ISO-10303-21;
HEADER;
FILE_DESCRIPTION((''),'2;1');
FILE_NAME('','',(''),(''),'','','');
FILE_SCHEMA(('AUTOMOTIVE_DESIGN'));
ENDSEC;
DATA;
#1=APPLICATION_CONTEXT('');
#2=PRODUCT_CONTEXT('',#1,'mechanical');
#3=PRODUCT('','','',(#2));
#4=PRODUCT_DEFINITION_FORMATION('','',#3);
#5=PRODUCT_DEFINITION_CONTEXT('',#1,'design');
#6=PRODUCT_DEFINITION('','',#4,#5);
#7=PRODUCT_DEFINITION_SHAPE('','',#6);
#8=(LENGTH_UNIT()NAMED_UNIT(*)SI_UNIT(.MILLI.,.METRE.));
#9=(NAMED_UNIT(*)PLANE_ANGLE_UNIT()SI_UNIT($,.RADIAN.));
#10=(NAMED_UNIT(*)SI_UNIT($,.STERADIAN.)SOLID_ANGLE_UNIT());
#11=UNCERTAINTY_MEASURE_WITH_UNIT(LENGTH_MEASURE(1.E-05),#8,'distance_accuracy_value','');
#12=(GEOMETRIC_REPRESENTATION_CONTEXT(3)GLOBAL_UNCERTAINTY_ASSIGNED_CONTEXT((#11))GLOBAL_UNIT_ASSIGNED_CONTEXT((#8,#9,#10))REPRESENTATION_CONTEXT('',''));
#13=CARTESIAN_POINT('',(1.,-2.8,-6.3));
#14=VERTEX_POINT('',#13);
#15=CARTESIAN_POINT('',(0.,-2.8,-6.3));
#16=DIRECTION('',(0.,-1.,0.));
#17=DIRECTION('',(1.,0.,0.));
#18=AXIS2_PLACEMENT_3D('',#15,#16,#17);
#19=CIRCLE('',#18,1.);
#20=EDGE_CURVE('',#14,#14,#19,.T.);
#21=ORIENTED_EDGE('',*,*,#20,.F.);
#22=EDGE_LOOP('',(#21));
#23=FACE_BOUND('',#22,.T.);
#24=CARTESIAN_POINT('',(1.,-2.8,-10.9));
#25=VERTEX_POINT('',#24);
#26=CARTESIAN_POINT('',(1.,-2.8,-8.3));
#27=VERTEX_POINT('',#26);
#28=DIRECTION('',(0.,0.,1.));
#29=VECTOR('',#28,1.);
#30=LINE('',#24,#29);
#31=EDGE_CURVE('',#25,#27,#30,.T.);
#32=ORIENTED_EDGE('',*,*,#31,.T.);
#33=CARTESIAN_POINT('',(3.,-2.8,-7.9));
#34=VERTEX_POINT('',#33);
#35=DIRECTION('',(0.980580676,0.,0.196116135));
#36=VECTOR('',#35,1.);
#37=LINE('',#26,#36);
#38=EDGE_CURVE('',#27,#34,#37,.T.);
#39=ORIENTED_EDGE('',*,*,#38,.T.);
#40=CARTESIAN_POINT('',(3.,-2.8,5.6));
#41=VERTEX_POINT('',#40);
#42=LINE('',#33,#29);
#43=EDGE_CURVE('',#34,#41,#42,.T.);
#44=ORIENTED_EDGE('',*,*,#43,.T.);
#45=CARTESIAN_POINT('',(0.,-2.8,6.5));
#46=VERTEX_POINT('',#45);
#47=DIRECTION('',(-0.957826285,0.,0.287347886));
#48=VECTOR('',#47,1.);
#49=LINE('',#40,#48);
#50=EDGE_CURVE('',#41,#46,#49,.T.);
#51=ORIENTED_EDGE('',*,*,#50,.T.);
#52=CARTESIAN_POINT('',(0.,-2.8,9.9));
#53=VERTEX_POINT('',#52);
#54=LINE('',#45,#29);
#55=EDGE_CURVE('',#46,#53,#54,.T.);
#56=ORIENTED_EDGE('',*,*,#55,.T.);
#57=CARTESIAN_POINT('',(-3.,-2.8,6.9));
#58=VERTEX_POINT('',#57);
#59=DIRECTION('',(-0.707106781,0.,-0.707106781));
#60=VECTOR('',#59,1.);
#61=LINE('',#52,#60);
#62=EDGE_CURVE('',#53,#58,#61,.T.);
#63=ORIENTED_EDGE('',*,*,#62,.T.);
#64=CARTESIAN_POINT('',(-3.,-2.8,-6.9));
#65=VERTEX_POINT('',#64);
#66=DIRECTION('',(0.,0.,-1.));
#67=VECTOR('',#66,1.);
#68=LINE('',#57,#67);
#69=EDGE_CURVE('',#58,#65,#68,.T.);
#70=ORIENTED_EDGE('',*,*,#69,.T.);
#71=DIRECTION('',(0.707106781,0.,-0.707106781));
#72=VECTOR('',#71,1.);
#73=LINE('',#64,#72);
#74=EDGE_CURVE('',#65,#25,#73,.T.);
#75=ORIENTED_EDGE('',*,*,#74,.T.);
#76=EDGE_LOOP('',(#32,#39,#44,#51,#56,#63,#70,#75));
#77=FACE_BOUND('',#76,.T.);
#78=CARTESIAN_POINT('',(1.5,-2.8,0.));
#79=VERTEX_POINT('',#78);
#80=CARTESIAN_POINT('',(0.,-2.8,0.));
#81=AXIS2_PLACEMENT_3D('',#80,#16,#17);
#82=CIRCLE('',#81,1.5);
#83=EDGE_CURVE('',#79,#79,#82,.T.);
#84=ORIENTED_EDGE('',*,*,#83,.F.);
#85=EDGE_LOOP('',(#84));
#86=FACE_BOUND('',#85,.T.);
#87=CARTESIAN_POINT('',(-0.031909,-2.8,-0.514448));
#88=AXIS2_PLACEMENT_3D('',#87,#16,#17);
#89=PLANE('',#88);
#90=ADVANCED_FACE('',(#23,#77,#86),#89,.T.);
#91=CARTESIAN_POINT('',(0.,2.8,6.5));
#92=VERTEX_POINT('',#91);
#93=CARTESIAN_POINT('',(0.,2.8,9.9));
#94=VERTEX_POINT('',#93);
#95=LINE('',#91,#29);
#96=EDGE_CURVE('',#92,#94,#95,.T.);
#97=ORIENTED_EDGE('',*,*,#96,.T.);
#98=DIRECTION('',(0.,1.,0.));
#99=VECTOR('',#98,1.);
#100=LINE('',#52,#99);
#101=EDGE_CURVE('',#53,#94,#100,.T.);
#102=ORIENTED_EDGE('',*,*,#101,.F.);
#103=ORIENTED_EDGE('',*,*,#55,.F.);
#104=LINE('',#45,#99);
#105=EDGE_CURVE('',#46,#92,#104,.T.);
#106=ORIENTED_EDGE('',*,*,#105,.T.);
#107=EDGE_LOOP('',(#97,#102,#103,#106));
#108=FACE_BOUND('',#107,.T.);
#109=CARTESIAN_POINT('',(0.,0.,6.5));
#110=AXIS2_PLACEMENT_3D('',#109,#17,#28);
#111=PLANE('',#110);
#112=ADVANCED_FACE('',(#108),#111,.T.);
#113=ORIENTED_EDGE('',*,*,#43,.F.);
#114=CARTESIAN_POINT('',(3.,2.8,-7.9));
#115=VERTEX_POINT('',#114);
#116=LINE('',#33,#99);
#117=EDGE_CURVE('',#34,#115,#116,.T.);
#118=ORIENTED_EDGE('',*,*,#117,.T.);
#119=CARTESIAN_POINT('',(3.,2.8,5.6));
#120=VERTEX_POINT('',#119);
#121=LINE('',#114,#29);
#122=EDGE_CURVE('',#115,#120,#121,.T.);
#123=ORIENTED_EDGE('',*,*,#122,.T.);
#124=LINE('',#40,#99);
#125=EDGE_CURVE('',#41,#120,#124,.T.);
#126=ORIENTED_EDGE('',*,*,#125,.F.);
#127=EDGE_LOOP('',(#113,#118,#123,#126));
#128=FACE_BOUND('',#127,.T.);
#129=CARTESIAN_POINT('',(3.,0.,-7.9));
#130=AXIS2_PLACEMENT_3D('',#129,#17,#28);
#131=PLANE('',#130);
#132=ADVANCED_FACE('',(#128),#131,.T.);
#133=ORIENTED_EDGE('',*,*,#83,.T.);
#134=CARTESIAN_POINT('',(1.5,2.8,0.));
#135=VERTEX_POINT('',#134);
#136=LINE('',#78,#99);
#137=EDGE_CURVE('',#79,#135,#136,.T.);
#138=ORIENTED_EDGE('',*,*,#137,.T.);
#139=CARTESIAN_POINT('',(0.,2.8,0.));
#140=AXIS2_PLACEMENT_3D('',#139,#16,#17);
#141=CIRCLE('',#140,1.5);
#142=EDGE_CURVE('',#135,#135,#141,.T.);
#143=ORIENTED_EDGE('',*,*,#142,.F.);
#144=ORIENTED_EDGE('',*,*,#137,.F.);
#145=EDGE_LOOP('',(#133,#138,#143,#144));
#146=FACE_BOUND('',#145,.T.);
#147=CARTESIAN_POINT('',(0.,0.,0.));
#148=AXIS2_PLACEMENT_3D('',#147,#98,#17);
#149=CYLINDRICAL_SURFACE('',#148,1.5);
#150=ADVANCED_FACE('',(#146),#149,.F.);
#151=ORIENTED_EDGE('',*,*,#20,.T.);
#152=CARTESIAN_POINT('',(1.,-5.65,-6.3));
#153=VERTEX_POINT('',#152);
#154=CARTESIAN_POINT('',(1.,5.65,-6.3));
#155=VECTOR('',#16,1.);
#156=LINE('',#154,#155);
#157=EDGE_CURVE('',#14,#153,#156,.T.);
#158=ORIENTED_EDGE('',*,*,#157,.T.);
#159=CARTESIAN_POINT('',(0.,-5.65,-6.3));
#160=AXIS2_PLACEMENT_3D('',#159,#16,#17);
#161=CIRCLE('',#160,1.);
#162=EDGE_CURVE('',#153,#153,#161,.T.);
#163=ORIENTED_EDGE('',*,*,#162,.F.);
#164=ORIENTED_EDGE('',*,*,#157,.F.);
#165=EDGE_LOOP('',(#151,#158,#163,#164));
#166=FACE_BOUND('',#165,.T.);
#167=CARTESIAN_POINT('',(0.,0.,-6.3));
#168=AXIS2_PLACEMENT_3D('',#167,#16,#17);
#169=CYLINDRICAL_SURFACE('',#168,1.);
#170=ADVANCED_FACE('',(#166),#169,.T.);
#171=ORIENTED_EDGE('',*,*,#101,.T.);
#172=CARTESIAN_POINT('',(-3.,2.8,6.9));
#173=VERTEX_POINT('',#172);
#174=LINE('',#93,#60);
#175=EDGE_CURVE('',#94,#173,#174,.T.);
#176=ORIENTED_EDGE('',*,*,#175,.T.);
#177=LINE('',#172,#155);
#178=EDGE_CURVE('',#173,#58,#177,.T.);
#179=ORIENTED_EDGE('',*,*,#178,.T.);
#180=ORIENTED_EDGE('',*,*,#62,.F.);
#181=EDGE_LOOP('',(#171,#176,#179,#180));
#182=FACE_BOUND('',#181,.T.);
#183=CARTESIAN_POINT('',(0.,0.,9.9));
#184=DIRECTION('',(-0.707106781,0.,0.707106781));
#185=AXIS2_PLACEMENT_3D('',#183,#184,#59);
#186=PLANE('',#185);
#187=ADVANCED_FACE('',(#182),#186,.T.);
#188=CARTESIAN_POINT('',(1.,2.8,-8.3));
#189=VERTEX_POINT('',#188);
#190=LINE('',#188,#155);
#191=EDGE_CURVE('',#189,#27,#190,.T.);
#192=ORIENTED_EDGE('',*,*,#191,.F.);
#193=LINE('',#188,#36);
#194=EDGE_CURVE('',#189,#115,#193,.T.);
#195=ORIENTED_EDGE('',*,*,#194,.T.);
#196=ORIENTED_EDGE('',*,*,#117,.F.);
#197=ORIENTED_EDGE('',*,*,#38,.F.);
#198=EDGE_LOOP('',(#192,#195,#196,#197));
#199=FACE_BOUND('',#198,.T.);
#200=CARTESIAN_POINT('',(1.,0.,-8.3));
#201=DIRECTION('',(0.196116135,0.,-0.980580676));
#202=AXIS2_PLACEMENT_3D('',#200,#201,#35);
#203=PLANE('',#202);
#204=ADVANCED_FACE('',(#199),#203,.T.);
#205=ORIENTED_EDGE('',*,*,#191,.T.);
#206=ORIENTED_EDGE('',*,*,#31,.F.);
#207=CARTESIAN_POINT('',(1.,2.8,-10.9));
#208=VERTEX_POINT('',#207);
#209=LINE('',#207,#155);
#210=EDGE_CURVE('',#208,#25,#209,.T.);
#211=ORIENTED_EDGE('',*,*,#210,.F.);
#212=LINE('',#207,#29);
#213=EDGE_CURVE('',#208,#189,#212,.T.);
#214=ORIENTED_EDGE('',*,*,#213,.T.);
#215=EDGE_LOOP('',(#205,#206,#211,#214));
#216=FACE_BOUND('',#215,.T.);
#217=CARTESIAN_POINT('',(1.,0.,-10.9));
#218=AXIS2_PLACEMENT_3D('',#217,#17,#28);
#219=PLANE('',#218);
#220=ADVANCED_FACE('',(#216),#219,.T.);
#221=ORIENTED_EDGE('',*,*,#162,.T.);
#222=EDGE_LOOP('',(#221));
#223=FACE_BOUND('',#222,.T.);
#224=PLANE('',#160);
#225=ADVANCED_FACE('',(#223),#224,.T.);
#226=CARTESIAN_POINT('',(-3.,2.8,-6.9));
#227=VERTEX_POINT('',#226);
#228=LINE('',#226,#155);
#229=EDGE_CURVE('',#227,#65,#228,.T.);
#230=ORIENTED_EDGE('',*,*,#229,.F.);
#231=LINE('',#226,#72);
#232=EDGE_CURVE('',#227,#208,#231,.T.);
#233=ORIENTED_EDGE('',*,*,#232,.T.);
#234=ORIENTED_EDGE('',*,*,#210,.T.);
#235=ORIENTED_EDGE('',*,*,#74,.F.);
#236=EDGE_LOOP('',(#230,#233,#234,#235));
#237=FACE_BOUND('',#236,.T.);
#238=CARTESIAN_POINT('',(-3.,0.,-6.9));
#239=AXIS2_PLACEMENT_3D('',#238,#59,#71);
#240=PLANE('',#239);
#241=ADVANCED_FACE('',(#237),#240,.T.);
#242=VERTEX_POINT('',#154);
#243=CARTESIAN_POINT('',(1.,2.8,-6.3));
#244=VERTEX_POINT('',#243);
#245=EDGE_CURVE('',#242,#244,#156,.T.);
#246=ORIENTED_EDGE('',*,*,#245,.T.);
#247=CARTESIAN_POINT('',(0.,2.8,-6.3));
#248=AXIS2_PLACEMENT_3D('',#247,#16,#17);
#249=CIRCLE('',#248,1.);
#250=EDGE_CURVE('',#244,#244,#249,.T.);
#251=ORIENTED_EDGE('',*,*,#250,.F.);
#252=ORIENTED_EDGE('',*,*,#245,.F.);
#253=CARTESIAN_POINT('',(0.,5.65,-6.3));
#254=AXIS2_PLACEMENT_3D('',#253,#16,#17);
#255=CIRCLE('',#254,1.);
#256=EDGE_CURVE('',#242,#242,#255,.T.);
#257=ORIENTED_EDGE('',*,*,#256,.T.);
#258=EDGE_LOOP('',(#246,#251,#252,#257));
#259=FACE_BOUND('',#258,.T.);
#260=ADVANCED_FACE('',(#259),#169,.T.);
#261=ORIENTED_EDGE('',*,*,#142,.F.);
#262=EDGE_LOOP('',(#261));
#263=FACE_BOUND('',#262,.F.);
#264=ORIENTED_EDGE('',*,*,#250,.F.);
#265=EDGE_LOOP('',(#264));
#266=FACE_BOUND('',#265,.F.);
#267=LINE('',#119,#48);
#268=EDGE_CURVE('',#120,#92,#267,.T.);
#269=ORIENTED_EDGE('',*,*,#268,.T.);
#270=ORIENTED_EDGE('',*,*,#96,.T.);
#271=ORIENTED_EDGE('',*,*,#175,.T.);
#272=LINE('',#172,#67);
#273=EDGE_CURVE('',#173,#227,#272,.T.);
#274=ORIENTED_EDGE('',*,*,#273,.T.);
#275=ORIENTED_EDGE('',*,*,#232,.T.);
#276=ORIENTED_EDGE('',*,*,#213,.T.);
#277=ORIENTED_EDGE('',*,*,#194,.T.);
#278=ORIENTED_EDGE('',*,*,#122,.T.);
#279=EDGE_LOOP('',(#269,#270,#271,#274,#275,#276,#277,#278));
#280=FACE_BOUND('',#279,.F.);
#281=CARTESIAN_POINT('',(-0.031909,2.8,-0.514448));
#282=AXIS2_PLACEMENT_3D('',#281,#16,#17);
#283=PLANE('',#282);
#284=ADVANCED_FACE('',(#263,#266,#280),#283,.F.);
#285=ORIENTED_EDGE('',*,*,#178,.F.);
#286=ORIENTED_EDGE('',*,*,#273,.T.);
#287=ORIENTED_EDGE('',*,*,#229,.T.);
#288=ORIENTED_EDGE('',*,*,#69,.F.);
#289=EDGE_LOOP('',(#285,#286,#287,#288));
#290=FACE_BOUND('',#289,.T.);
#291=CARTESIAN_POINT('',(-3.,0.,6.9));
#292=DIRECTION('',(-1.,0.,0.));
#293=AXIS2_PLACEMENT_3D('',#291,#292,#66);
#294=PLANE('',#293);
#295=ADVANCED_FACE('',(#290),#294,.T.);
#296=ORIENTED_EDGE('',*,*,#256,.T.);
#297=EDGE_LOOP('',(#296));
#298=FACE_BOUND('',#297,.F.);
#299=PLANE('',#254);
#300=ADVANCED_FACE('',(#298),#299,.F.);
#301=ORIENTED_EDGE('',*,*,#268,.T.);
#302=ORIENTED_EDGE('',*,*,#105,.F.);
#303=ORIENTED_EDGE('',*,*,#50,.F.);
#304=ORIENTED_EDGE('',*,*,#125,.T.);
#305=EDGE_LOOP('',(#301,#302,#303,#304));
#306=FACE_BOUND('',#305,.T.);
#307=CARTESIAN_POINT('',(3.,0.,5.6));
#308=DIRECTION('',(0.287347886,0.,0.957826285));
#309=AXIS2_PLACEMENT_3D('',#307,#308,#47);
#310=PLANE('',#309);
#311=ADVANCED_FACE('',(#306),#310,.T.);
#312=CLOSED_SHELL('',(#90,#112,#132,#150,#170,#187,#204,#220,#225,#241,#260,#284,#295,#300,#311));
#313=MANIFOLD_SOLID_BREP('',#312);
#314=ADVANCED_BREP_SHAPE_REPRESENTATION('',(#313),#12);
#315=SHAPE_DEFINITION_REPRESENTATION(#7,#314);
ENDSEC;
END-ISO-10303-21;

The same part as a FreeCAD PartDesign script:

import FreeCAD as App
import Part
import Sketcher

V = App.Vector
Q = App.Units.Quantity


def add_polygon(sketch, points):
    """Adds a closed chain of lines whose ends are joined by coincident constraints."""
    first, n = sketch.GeometryCount, len(points)
    for a, b in zip(points, points[1:] + points[:1]):
        sketch.addGeometry(Part.LineSegment(App.Vector(*a, 0), App.Vector(*b, 0)), False)
    for i in range(n):
        sketch.addConstraint(Sketcher.Constraint("Coincident", first + i, 2, first + (i + 1) % n, 1))

doc = App.newDocument("Part")
body = doc.addObject("PartDesign::Body", "Body")

# Sketch on XZ plane
sketch1 = body.newObject("Sketcher::SketchObject", "Sketch")
sketch1.AttachmentSupport = (doc.getObject("XZ_Plane"), [""])
sketch1.MapMode = "FlatFace"
add_polygon(sketch1, [(0, 9.9), (-3, 6.9), (-3, -6.9), (1, -10.9), (1, -8.3), (3, -7.9), (3, 5.6), (0, 6.5)])  # lines 0-7
sketch1.addGeometry(Part.Circle(V(0, -6.3, 0), V(0, 0, 1), 1), False)  # 8
sketch1.addGeometry(Part.Circle(V(0, 0, 0), V(0, 0, 1), 1.5), False)  # 9
sketch1.addConstraint([
    Sketcher.Constraint("Vertical", 1),
    Sketcher.Constraint("Vertical", 3),
    Sketcher.Constraint("Vertical", 5),
    Sketcher.Constraint("Vertical", 7),
    Sketcher.Constraint("Coincident", 9, 3, -1, 1),
    Sketcher.Constraint("PointOnObject", 8, 3, -2),
    Sketcher.Constraint("PointOnObject", 6, 2, -2),
    Sketcher.Constraint("Perpendicular", 0, 2),
    Sketcher.Constraint("Diameter", 8, 2.0),
    Sketcher.Constraint("Diameter", 9, 3.0),
    Sketcher.Constraint("Angle", 0, Q("-135 deg")),
    Sketcher.Constraint("DistanceY", 1, 2, 1, 1, 13.8),
    Sketcher.Constraint("DistanceY", 3, 1, 3, 2, 2.6),
    Sketcher.Constraint("DistanceY", 5, 1, 5, 2, 13.5),
    Sketcher.Constraint("DistanceY", 7, 1, 7, 2, 3.4),
    Sketcher.Constraint("DistanceX", 0, 2, -1, 1, 3.0),
    Sketcher.Constraint("DistanceX", -1, 1, 2, 2, 1.0),
    Sketcher.Constraint("DistanceX", -1, 1, 4, 2, 3.0),
    Sketcher.Constraint("DistanceY", 3, 2, 8, 3, 2.0),
    Sketcher.Constraint("DistanceY", 2, 2, 4, 2, 3.0),
    Sketcher.Constraint("DistanceY", 8, 3, -1, 1, 6.3),
])
pad1 = body.newObject("PartDesign::Pad", "Pad")
pad1.Profile = sketch1
pad1.Length = 5.6
pad1.Midplane = True

# Sketch on XZ plane
sketch2 = body.newObject("Sketcher::SketchObject", "Sketch001")
sketch2.AttachmentSupport = (doc.getObject("XZ_Plane"), [""])
sketch2.MapMode = "FlatFace"
sketch2.addGeometry(Part.Circle(V(0, -6.3, 0), V(0, 0, 1), 1), False)
sketch2.addConstraint([
    Sketcher.Constraint("PointOnObject", 0, 3, -2),
    Sketcher.Constraint("Diameter", 0, 2.0),
    Sketcher.Constraint("DistanceY", 0, 3, -1, 1, 6.3),
])
pad2 = body.newObject("PartDesign::Pad", "Pad001")
pad2.Profile = sketch2
pad2.Length = 11.3
pad2.Midplane = True

doc.recompute()
